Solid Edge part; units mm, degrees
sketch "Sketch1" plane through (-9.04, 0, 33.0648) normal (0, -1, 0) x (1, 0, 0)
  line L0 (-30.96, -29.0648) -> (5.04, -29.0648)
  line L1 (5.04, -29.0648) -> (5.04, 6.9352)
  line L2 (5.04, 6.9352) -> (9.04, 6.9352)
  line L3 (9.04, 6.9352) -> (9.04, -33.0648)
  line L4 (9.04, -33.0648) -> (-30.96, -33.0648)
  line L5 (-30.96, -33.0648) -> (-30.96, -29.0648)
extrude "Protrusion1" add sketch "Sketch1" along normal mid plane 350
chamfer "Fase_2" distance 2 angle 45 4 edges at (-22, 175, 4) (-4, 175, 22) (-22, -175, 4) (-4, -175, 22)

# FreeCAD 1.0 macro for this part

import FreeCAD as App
import Part
import Sketcher

V = App.Vector


def edges_at(feature, points):
    """Names of the edges that pass closest to the given points."""
    edges = feature.Shape.Edges
    near = lambda p: min(range(len(edges)), key=lambda i: edges[i].distToShape(Part.Vertex(*p))[0])
    return sorted({f"Edge{near(p) + 1}" for p in points})


def add_polygon(sketch, points):
    """Adds a closed chain of lines whose ends are joined by coincident constraints."""
    first, n = sketch.GeometryCount, len(points)
    for a, b in zip(points, points[1:] + points[:1]):
        sketch.addGeometry(Part.LineSegment(App.Vector(*a, 0), App.Vector(*b, 0)), False)
    for i in range(n):
        sketch.addConstraint(Sketcher.Constraint("Coincident", first + i, 2, first + (i + 1) % n, 1))

doc = App.newDocument("Part")
body = doc.addObject("PartDesign::Body", "Body")

sketch1 = body.newObject("Sketcher::SketchObject", "Sketch")
sketch1.AttachmentSupport = (doc.getObject("XZ_Plane"), [""])
sketch1.MapMode = "FlatFace"
add_polygon(sketch1, [(-4, 4), (-40, 4), (-40, 0), (0, 0), (0, 40), (-4, 40)])
sketch1.addConstraint([
    Sketcher.Constraint("Horizontal", 0),
    Sketcher.Constraint("Vertical", 1),
    Sketcher.Constraint("Horizontal", 2),
    Sketcher.Constraint("Vertical", 3),
    Sketcher.Constraint("Horizontal", 4),
    Sketcher.Constraint("Vertical", 5),
    Sketcher.Constraint("Coincident", 2, 2, -1, 1),
    Sketcher.Constraint("Equal", 4, 1),
    Sketcher.Constraint("Equal", 2, 3),
    Sketcher.Constraint("DistanceX", 0, 2, 0, 1, 36.0),
    Sketcher.Constraint("DistanceX", 2, 1, 2, 2, 40.0),
])
pad1 = body.newObject("PartDesign::Pad", "Pad")
pad1.Profile = sketch1
pad1.Length = 350
pad1.Midplane = True
doc.recompute()

chamfer = body.newObject("PartDesign::Chamfer", "Chamfer")
chamfer.Base = (pad1, edges_at(pad1, [
    (-22, 175, 4),
    (-4, 175, 22),
    (-22, -175, 4),
    (-4, -175, 22),
]))
chamfer.Size = 2

doc.recompute()
